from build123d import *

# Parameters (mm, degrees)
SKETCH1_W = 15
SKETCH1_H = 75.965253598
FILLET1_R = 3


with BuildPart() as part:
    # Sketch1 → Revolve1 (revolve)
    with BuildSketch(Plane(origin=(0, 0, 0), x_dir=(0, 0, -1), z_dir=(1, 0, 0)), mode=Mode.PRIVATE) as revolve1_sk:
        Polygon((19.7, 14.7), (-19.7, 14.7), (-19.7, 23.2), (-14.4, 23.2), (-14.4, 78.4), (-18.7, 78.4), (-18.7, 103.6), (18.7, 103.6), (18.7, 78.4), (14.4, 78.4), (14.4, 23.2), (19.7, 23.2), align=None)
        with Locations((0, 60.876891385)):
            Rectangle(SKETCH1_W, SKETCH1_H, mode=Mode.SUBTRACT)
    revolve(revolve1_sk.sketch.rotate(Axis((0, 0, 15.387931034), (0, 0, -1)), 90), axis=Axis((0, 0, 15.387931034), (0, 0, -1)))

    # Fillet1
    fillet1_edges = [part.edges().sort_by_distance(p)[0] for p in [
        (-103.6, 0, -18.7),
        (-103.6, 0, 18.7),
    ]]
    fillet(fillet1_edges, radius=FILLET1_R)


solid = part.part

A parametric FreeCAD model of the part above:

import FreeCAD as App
import Part
import Sketcher


def edges_at(feature, points):
    """Names of the edges that pass closest to the given points."""
    edges = feature.Shape.Edges
    near = lambda p: min(range(len(edges)), key=lambda i: edges[i].distToShape(Part.Vertex(*p))[0])
    return sorted({f"Edge{near(p) + 1}" for p in points})


def add_polygon(sketch, points):
    """Adds a closed chain of lines whose ends are joined by coincident constraints."""
    first, n = sketch.GeometryCount, len(points)
    for a, b in zip(points, points[1:] + points[:1]):
        sketch.addGeometry(Part.LineSegment(App.Vector(*a, 0), App.Vector(*b, 0)), False)
    for i in range(n):
        sketch.addConstraint(Sketcher.Constraint("Coincident", first + i, 2, first + (i + 1) % n, 1))

doc = App.newDocument("Part")
body = doc.addObject("PartDesign::Body", "Body")

# Sketch on YZ plane
sketch1 = body.newObject("Sketcher::SketchObject", "Sketch")
sketch1.AttachmentSupport = (doc.getObject("YZ_Plane"), [""])
sketch1.MapMode = "FlatFace"
add_polygon(sketch1, [(14.7, 19.7), (14.7, -19.7), (23.2, -19.7), (23.2, -14.4), (78.4, -14.4), (78.4, -18.7), (103.6, -18.7), (103.6, 18.7), (78.4, 18.7), (78.4, 14.4), (23.2, 14.4), (23.2, 19.7)])  # lines 0-11
add_polygon(sketch1, [(22.894265, 7.5), (98.859518, 7.5), (98.859518, -7.5), (22.894265, -7.5)])  # lines 12-15
sketch1.addConstraint(Sketcher.Constraint("Vertical", 0))
sketch1.addConstraint(Sketcher.Constraint("Horizontal", 1))
sketch1.addConstraint(Sketcher.Constraint("Vertical", 2))
sketch1.addConstraint(Sketcher.Constraint("Horizontal", 3))
sketch1.addConstraint(Sketcher.Constraint("Vertical", 4))
sketch1.addConstraint(Sketcher.Constraint("Horizontal", 5))
sketch1.addConstraint(Sketcher.Constraint("Vertical", 6))
sketch1.addConstraint(Sketcher.Constraint("Horizontal", 7))
sketch1.addConstraint(Sketcher.Constraint("Vertical", 8))
sketch1.addConstraint(Sketcher.Constraint("Horizontal", 9))
sketch1.addConstraint(Sketcher.Constraint("Vertical", 10))
sketch1.addConstraint(Sketcher.Constraint("Horizontal", 11))
sketch1.addConstraint(Sketcher.Constraint("Horizontal", 12))
sketch1.addConstraint(Sketcher.Constraint("Vertical", 13))
sketch1.addConstraint(Sketcher.Constraint("Horizontal", 14))
sketch1.addConstraint(Sketcher.Constraint("Vertical", 15))
sketch1.addConstraint(Sketcher.Constraint("Symmetric", 4, 2, 7, 2, -1))
sketch1.addConstraint(Sketcher.Constraint("Symmetric", 2, 2, 9, 2, -1))
sketch1.addConstraint(Sketcher.Constraint("Equal", 2, 10))
sketch1.addConstraint(Sketcher.Constraint("DistanceY", 13, 2, 13, 1, 15.0))
sketch1.addConstraint(Sketcher.Constraint("DistanceX", 1, 1, 1, 2, 8.5))
sketch1.addConstraint(Sketcher.Constraint("DistanceX", 3, 1, 3, 2, 55.2))
sketch1.addConstraint(Sketcher.Constraint("DistanceX", 5, 1, 5, 2, 25.2))
sketch1.addConstraint(Sketcher.Constraint("DistanceY", 0, 2, 0, 1, 39.4))
sketch1.addConstraint(Sketcher.Constraint("DistanceY", 2, 1, 2, 2, 5.3))
sketch1.addConstraint(Sketcher.Constraint("DistanceY", 4, 2, 4, 1, 4.3))
sketch1.addConstraint(Sketcher.Constraint("DistanceX", -1, 1, 0, 2, 14.7))
sketch1.addConstraint(Sketcher.Constraint("DistanceY", -1, 1, 12, 2, 7.5))
sketch1.addConstraint(Sketcher.Constraint("DistanceX", 12, 1, 12, 2, 75.965254))
sketch1.addConstraint(Sketcher.Constraint("DistanceX", -1, 1, 12, 2, 98.859518))
revolution = body.newObject("PartDesign::Revolution", "Revolution")
revolution.Profile = sketch1
revolution.ReferenceAxis = (sketch1, ["V_Axis"])
revolution.Angle = 360
doc.recompute()

fillet = body.newObject("PartDesign::Fillet", "Fillet")
fillet.Base = (revolution, edges_at(revolution, [(-103.6, 0, -18.7), (-103.6, 0, 18.7)]))
fillet.Radius = 3

doc.recompute()
